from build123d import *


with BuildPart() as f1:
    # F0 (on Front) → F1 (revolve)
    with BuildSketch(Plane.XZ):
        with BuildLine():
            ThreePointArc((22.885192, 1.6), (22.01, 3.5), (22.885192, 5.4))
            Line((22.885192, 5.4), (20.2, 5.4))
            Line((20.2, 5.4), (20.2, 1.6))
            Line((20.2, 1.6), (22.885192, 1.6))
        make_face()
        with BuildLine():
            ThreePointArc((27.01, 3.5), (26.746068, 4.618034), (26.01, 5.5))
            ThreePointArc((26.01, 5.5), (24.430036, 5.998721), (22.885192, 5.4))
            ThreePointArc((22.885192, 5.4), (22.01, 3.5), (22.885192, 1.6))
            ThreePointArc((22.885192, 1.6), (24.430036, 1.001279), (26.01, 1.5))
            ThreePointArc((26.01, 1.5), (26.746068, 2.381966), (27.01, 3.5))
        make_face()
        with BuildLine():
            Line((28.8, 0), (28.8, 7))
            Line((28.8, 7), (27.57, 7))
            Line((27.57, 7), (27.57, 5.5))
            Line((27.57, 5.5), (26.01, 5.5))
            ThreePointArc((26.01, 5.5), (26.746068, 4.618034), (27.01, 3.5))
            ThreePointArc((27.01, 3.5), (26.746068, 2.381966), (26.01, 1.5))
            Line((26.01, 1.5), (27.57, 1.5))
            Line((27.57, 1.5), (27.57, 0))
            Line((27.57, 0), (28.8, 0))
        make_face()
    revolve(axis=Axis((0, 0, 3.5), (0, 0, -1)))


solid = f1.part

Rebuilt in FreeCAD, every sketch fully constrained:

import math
import FreeCAD as App
import Part
import Sketcher

doc = App.newDocument("Part")
body = doc.addObject("PartDesign::Body", "Body")

# Sketch on XZ plane
sketch1 = body.newObject("Sketcher::SketchObject", "Sketch")
sketch1.AttachmentSupport = (doc.getObject("XZ_Plane"), [""])
sketch1.MapMode = "FlatFace"
sketch1.addGeometry(Part.LineSegment(App.Vector(22.9, 5.4, 0), App.Vector(20.2, 5.4, 0)), False)
sketch1.addGeometry(Part.LineSegment(App.Vector(20.2, 5.4, 0), App.Vector(20.2, 1.6, 0)), False)
sketch1.addGeometry(Part.LineSegment(App.Vector(20.2, 1.6, 0), App.Vector(22.9, 1.6, 0)), False)
sketch1.addGeometry(Part.ArcOfCircle(Part.Circle(App.Vector(24.5, 3.5, 0), App.Vector(0, 0, 1), 2.5), math.radians(-131), math.radians(-53)), False)
sketch1.addGeometry(Part.LineSegment(App.Vector(26, 1.5, 0), App.Vector(27.6, 1.5, 0)), False)
sketch1.addGeometry(Part.LineSegment(App.Vector(27.6, 1.5, 0), App.Vector(27.6, 0, 0)), False)
sketch1.addGeometry(Part.LineSegment(App.Vector(27.6, 0, 0), App.Vector(28.8, 0, 0)), False)
sketch1.addGeometry(Part.LineSegment(App.Vector(28.8, 0, 0), App.Vector(28.8, 7, 0)), False)
sketch1.addGeometry(Part.LineSegment(App.Vector(28.8, 7, 0), App.Vector(27.6, 7, 0)), False)
sketch1.addGeometry(Part.LineSegment(App.Vector(27.6, 7, 0), App.Vector(27.6, 5.5, 0)), False)
sketch1.addGeometry(Part.LineSegment(App.Vector(27.6, 5.5, 0), App.Vector(26, 5.5, 0)), False)
sketch1.addGeometry(Part.ArcOfCircle(Part.Circle(App.Vector(24.5, 3.5, 0), App.Vector(0, 0, 1), 2.5), math.radians(53), math.radians(131)), False)
sketch1.addConstraint(Sketcher.Constraint("Coincident", 0, 2, 1, 1))
sketch1.addConstraint(Sketcher.Constraint("Coincident", 1, 2, 2, 1))
sketch1.addConstraint(Sketcher.Constraint("Coincident", 2, 2, 3, 1))
sketch1.addConstraint(Sketcher.Constraint("Coincident", 3, 2, 4, 1))
sketch1.addConstraint(Sketcher.Constraint("Coincident", 4, 2, 5, 1))
sketch1.addConstraint(Sketcher.Constraint("Coincident", 5, 2, 6, 1))
sketch1.addConstraint(Sketcher.Constraint("Coincident", 6, 2, 7, 1))
sketch1.addConstraint(Sketcher.Constraint("Coincident", 7, 2, 8, 1))
sketch1.addConstraint(Sketcher.Constraint("Coincident", 8, 2, 9, 1))
sketch1.addConstraint(Sketcher.Constraint("Coincident", 9, 2, 10, 1))
sketch1.addConstraint(Sketcher.Constraint("Coincident", 10, 2, 11, 1))
sketch1.addConstraint(Sketcher.Constraint("Coincident", 11, 2, 0, 1))
sketch1.addConstraint(Sketcher.Constraint("Horizontal", 0))
sketch1.addConstraint(Sketcher.Constraint("Vertical", 1))
sketch1.addConstraint(Sketcher.Constraint("Horizontal", 2))
sketch1.addConstraint(Sketcher.Constraint("Horizontal", 4))
sketch1.addConstraint(Sketcher.Constraint("Vertical", 5))
sketch1.addConstraint(Sketcher.Constraint("Horizontal", 6))
sketch1.addConstraint(Sketcher.Constraint("Vertical", 7))
sketch1.addConstraint(Sketcher.Constraint("Horizontal", 8))
sketch1.addConstraint(Sketcher.Constraint("Vertical", 9))
sketch1.addConstraint(Sketcher.Constraint("Horizontal", 10))
sketch1.addConstraint(Sketcher.Constraint("Coincident", 11, 3, 3, 3))
sketch1.addConstraint(Sketcher.Constraint("Equal", 3, 11))
sketch1.addConstraint(Sketcher.Constraint("PointOnObject", 5, 2, -1))
sketch1.addConstraint(Sketcher.Constraint("Vertical", 5, 2, 8, 2))
sketch1.addConstraint(Sketcher.Constraint("Vertical", 3, 2, 10, 2))
sketch1.addConstraint(Sketcher.Constraint("Vertical", 2, 2, 11, 2))
sketch1.addConstraint(Sketcher.Constraint("Equal", 5, 9))
sketch1.addConstraint(Sketcher.Constraint("Radius", 3, 2.5))
sketch1.addConstraint(Sketcher.Constraint("DistanceY", 7, 1, 7, 2, 7.0))
sketch1.addConstraint(Sketcher.Constraint("DistanceY", 1, 2, 1, 1, 3.8))
sketch1.addConstraint(Sketcher.Constraint("DistanceY", 5, 2, 5, 1, 1.5))
sketch1.addConstraint(Sketcher.Constraint("DistanceX", 4, 1, 4, 2, 1.56))
sketch1.addConstraint(Sketcher.Constraint("DistanceX", 6, 1, 6, 2, 1.23))
sketch1.addConstraint(Sketcher.Constraint("DistanceX", -1, 1, 0, 2, 20.2))
sketch1.addConstraint(Sketcher.Constraint("DistanceX", -1, 1, 6, 2, 28.8))
revolution = body.newObject("PartDesign::Revolution", "Revolution")
revolution.Profile = sketch1
revolution.ReferenceAxis = (sketch1, ["V_Axis"])
revolution.Angle = 360

doc.recompute()
